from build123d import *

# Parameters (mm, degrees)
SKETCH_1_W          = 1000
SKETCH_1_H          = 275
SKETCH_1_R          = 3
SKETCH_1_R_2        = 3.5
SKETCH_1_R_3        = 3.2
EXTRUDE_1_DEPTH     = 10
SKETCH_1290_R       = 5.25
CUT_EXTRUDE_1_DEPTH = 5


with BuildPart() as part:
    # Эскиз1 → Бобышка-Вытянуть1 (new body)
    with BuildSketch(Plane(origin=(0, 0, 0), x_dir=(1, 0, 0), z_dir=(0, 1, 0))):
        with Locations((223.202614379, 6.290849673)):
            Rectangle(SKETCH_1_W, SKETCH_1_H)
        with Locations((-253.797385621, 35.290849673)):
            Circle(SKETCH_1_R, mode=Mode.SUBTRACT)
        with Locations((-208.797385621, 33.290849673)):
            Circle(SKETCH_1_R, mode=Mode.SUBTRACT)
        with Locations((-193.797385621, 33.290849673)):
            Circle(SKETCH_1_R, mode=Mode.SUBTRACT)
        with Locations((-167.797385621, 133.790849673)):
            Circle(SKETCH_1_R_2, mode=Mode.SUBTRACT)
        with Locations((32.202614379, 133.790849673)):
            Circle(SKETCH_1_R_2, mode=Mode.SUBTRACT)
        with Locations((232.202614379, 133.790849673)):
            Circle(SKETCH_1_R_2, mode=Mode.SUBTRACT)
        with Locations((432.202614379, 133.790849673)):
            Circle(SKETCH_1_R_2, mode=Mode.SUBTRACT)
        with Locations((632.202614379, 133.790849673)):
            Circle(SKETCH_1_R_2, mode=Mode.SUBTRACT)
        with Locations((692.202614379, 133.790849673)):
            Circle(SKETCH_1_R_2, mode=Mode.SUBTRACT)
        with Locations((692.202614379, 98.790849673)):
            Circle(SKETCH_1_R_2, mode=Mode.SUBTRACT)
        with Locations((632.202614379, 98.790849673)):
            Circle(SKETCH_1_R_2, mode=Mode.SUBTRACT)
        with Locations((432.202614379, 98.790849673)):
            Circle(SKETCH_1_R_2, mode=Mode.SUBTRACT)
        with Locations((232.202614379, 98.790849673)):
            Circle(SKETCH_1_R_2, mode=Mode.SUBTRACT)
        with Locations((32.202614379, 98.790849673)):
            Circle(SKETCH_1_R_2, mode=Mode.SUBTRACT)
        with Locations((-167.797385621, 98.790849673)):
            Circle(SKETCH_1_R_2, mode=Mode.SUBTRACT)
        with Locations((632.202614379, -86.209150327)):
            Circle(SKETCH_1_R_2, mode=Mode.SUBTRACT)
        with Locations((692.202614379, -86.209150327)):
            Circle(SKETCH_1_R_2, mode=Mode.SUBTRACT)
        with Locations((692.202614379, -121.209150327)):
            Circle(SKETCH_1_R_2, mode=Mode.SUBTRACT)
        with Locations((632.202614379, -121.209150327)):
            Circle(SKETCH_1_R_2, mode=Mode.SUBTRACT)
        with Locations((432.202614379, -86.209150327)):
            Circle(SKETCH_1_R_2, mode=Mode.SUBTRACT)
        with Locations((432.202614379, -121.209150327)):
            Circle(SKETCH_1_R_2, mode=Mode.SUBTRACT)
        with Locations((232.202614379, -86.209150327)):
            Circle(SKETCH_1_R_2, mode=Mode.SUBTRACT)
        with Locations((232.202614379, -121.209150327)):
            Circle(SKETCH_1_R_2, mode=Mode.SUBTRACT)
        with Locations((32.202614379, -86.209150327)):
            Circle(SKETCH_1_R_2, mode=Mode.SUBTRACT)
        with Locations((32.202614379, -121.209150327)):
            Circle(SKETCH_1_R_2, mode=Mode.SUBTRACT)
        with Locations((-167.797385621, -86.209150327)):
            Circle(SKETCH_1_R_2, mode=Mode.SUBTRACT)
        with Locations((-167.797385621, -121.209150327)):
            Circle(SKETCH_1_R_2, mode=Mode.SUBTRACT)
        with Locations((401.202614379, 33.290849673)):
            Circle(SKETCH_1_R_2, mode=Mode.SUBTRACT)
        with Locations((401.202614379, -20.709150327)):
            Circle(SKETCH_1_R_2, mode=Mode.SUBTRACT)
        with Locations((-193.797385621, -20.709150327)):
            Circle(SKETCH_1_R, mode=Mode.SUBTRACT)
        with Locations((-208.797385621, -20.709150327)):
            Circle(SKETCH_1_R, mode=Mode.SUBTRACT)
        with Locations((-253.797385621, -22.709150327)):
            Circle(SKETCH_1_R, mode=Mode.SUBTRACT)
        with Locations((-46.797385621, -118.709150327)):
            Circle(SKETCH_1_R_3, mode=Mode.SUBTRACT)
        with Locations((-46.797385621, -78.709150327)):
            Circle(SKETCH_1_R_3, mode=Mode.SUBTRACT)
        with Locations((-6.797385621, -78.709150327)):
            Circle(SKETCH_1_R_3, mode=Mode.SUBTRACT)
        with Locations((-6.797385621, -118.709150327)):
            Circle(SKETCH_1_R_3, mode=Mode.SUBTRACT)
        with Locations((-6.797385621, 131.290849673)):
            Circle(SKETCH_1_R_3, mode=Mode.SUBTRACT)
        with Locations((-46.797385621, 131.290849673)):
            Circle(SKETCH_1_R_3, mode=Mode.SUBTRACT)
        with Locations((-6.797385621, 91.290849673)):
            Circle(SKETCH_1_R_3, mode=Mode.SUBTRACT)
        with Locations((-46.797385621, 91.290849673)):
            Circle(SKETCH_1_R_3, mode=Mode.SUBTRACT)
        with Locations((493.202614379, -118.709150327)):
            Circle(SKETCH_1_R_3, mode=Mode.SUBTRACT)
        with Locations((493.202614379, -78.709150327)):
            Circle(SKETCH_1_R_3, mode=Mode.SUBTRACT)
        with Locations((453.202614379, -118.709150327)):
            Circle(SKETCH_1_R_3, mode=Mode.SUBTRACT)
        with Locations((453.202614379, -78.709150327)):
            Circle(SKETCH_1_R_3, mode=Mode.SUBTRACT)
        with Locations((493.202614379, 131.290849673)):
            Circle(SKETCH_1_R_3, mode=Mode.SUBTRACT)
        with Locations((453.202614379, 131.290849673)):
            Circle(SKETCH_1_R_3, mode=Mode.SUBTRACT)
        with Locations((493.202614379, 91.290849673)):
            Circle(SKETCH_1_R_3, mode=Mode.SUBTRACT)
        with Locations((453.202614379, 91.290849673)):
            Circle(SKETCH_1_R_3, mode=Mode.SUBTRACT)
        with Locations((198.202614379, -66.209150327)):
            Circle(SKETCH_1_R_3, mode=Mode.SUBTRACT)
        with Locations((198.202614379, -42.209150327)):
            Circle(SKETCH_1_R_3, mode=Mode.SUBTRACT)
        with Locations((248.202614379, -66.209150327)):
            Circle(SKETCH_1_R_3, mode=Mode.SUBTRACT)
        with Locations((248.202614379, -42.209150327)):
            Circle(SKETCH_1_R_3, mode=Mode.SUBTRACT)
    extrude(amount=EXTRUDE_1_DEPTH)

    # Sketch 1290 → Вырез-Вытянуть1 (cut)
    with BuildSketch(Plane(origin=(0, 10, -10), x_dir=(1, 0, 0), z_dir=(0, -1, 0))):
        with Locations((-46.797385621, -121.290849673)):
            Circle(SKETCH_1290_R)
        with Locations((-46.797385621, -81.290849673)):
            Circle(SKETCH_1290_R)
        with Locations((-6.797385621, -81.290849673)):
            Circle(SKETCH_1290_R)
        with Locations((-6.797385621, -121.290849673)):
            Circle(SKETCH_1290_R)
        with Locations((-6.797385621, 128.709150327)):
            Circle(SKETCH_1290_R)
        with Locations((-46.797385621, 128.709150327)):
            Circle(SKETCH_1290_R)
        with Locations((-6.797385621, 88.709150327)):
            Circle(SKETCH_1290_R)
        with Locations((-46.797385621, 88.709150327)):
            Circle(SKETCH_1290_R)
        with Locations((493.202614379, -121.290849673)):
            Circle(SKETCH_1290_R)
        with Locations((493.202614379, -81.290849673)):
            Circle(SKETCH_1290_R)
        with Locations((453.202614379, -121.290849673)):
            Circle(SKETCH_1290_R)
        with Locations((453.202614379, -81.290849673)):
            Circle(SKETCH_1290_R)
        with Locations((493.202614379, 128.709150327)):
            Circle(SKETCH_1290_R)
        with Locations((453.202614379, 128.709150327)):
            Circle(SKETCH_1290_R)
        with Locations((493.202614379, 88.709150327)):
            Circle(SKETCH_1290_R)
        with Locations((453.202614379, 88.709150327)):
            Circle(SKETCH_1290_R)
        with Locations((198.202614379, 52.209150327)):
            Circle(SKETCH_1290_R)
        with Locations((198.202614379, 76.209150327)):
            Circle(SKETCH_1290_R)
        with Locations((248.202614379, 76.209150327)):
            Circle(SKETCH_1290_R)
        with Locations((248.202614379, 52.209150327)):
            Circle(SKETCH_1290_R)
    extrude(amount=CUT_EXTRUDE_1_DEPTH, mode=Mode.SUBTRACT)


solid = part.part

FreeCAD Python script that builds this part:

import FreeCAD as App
import Part
import Sketcher


def add_polygon(sketch, points):
    """Adds a closed chain of lines whose ends are joined by coincident constraints."""
    first, n = sketch.GeometryCount, len(points)
    for a, b in zip(points, points[1:] + points[:1]):
        sketch.addGeometry(Part.LineSegment(App.Vector(*a, 0), App.Vector(*b, 0)), False)
    for i in range(n):
        sketch.addConstraint(Sketcher.Constraint("Coincident", first + i, 2, first + (i + 1) % n, 1))

doc = App.newDocument("Part")
body = doc.addObject("PartDesign::Body", "Body")

# Sketch on XZ plane
sketch1 = doc.addObject("Sketcher::SketchObject", "Sketch")
body.addObject(sketch1)
sketch1.AttachmentSupport = (doc.XZ_Plane, [""])
sketch1.MapMode = "FlatFace"
add_polygon(sketch1, [(-276.797386, -143.79085), (-276.797386, 131.20915), (723.202614, 131.20915), (723.202614, -143.79085)])  # lines 0-3
sketch1.addGeometry(Part.Circle(App.Vector(-167.797386, 121.20915, 0), App.Vector(0, 0, 1), 3.5), False)  # 4
sketch1.addGeometry(Part.Circle(App.Vector(-46.797386, 118.70915, 0), App.Vector(0, 0, 1), 3.2), False)  # 5
sketch1.addGeometry(Part.Circle(App.Vector(-167.797386, 86.20915, 0), App.Vector(0, 0, 1), 3.5), False)  # 6
sketch1.addGeometry(Part.Circle(App.Vector(-46.797386, 78.70915, 0), App.Vector(0, 0, 1), 3.2), False)  # 7
sketch1.addGeometry(Part.Circle(App.Vector(-6.797386, 118.70915, 0), App.Vector(0, 0, 1), 3.2), False)  # 8
sketch1.addGeometry(Part.Circle(App.Vector(32.202614, 121.20915, 0), App.Vector(0, 0, 1), 3.5), False)  # 9
sketch1.addGeometry(Part.Circle(App.Vector(32.202614, 86.20915, 0), App.Vector(0, 0, 1), 3.5), False)  # 10
sketch1.addGeometry(Part.Circle(App.Vector(-6.797386, 78.70915, 0), App.Vector(0, 0, 1), 3.2), False)  # 11
sketch1.addGeometry(Part.Circle(App.Vector(198.202614, 66.20915, 0), App.Vector(0, 0, 1), 3.2), False)  # 12
sketch1.addGeometry(Part.Circle(App.Vector(-253.797386, 22.70915, 0), App.Vector(0, 0, 1), 3), False)  # 13
sketch1.addGeometry(Part.Circle(App.Vector(-208.797386, 20.70915, 0), App.Vector(0, 0, 1), 3), False)  # 14
sketch1.addGeometry(Part.Circle(App.Vector(-193.797386, 20.70915, 0), App.Vector(0, 0, 1), 3), False)  # 15
sketch1.addGeometry(Part.Circle(App.Vector(198.202614, 42.20915, 0), App.Vector(0, 0, 1), 3.2), False)  # 16
sketch1.addGeometry(Part.Circle(App.Vector(232.202614, 121.20915, 0), App.Vector(0, 0, 1), 3.5), False)  # 17
sketch1.addGeometry(Part.Circle(App.Vector(432.202614, 121.20915, 0), App.Vector(0, 0, 1), 3.5), False)  # 18
sketch1.addGeometry(Part.Circle(App.Vector(453.202614, 118.70915, 0), App.Vector(0, 0, 1), 3.2), False)  # 19
sketch1.addGeometry(Part.Circle(App.Vector(232.202614, 86.20915, 0), App.Vector(0, 0, 1), 3.5), False)  # 20
sketch1.addGeometry(Part.Circle(App.Vector(248.202614, 66.20915, 0), App.Vector(0, 0, 1), 3.2), False)  # 21
sketch1.addGeometry(Part.Circle(App.Vector(432.202614, 86.20915, 0), App.Vector(0, 0, 1), 3.5), False)  # 22
sketch1.addGeometry(Part.Circle(App.Vector(453.202614, 78.70915, 0), App.Vector(0, 0, 1), 3.2), False)  # 23
sketch1.addGeometry(Part.Circle(App.Vector(493.202614, 118.70915, 0), App.Vector(0, 0, 1), 3.2), False)  # 24
sketch1.addGeometry(Part.Circle(App.Vector(632.202614, 121.20915, 0), App.Vector(0, 0, 1), 3.5), False)  # 25
sketch1.addGeometry(Part.Circle(App.Vector(692.202614, 121.20915, 0), App.Vector(0, 0, 1), 3.5), False)  # 26
sketch1.addGeometry(Part.Circle(App.Vector(493.202614, 78.70915, 0), App.Vector(0, 0, 1), 3.2), False)  # 27
sketch1.addGeometry(Part.Circle(App.Vector(632.202614, 86.20915, 0), App.Vector(0, 0, 1), 3.5), False)  # 28
sketch1.addGeometry(Part.Circle(App.Vector(692.202614, 86.20915, 0), App.Vector(0, 0, 1), 3.5), False)  # 29
sketch1.addGeometry(Part.Circle(App.Vector(248.202614, 42.20915, 0), App.Vector(0, 0, 1), 3.2), False)  # 30
sketch1.addGeometry(Part.Circle(App.Vector(401.202614, 20.70915, 0), App.Vector(0, 0, 1), 3.5), False)  # 31
sketch1.addGeometry(Part.Circle(App.Vector(-253.797386, -35.29085, 0), App.Vector(0, 0, 1), 3), False)  # 32
sketch1.addGeometry(Part.Circle(App.Vector(-208.797386, -33.29085, 0), App.Vector(0, 0, 1), 3), False)  # 33
sketch1.addGeometry(Part.Circle(App.Vector(-193.797386, -33.29085, 0), App.Vector(0, 0, 1), 3), False)  # 34
sketch1.addGeometry(Part.Circle(App.Vector(-167.797386, -98.79085, 0), App.Vector(0, 0, 1), 3.5), False)  # 35
sketch1.addGeometry(Part.Circle(App.Vector(-46.797386, -91.29085, 0), App.Vector(0, 0, 1), 3.2), False)  # 36
sketch1.addGeometry(Part.Circle(App.Vector(-167.797386, -133.79085, 0), App.Vector(0, 0, 1), 3.5), False)  # 37
sketch1.addGeometry(Part.Circle(App.Vector(-46.797386, -131.29085, 0), App.Vector(0, 0, 1), 3.2), False)  # 38
sketch1.addGeometry(Part.Circle(App.Vector(-6.797386, -91.29085, 0), App.Vector(0, 0, 1), 3.2), False)  # 39
sketch1.addGeometry(Part.Circle(App.Vector(32.202614, -98.79085, 0), App.Vector(0, 0, 1), 3.5), False)  # 40
sketch1.addGeometry(Part.Circle(App.Vector(-6.797386, -131.29085, 0), App.Vector(0, 0, 1), 3.2), False)  # 41
sketch1.addGeometry(Part.Circle(App.Vector(32.202614, -133.79085, 0), App.Vector(0, 0, 1), 3.5), False)  # 42
sketch1.addGeometry(Part.Circle(App.Vector(401.202614, -33.29085, 0), App.Vector(0, 0, 1), 3.5), False)  # 43
sketch1.addGeometry(Part.Circle(App.Vector(232.202614, -98.79085, 0), App.Vector(0, 0, 1), 3.5), False)  # 44
sketch1.addGeometry(Part.Circle(App.Vector(453.202614, -91.29085, 0), App.Vector(0, 0, 1), 3.2), False)  # 45
sketch1.addGeometry(Part.Circle(App.Vector(432.202614, -98.79085, 0), App.Vector(0, 0, 1), 3.5), False)  # 46
sketch1.addGeometry(Part.Circle(App.Vector(232.202614, -133.79085, 0), App.Vector(0, 0, 1), 3.5), False)  # 47
sketch1.addGeometry(Part.Circle(App.Vector(453.202614, -131.29085, 0), App.Vector(0, 0, 1), 3.2), False)  # 48
sketch1.addGeometry(Part.Circle(App.Vector(432.202614, -133.79085, 0), App.Vector(0, 0, 1), 3.5), False)  # 49
sketch1.addGeometry(Part.Circle(App.Vector(493.202614, -91.29085, 0), App.Vector(0, 0, 1), 3.2), False)  # 50
sketch1.addGeometry(Part.Circle(App.Vector(632.202614, -98.79085, 0), App.Vector(0, 0, 1), 3.5), False)  # 51
sketch1.addGeometry(Part.Circle(App.Vector(692.202614, -98.79085, 0), App.Vector(0, 0, 1), 3.5), False)  # 52
sketch1.addGeometry(Part.Circle(App.Vector(493.202614, -131.29085, 0), App.Vector(0, 0, 1), 3.2), False)  # 53
sketch1.addGeometry(Part.Circle(App.Vector(632.202614, -133.79085, 0), App.Vector(0, 0, 1), 3.5), False)  # 54
sketch1.addGeometry(Part.Circle(App.Vector(692.202614, -133.79085, 0), App.Vector(0, 0, 1), 3.5), False)  # 55
sketch1.addConstraint(Sketcher.Constraint("Vertical", 0))
sketch1.addConstraint(Sketcher.Constraint("Horizontal", 1))
sketch1.addConstraint(Sketcher.Constraint("Vertical", 2))
sketch1.addConstraint(Sketcher.Constraint("Horizontal", 3))
sketch1.addConstraint(Sketcher.Constraint("Equal", 4, 6))
sketch1.addConstraint(Sketcher.Constraint("Equal", 5, 7))
sketch1.addConstraint(Sketcher.Constraint("Equal", 7, 8))
sketch1.addConstraint(Sketcher.Constraint("Equal", 6, 9))
sketch1.addConstraint(Sketcher.Constraint("Equal", 9, 10))
sketch1.addConstraint(Sketcher.Constraint("Equal", 8, 11))
sketch1.addConstraint(Sketcher.Constraint("Equal", 11, 12))
sketch1.addConstraint(Sketcher.Constraint("Equal", 13, 14))
sketch1.addConstraint(Sketcher.Constraint("Equal", 14, 15))
sketch1.addConstraint(Sketcher.Constraint("Equal", 12, 16))
sketch1.addConstraint(Sketcher.Constraint("Equal", 10, 17))
sketch1.addConstraint(Sketcher.Constraint("Equal", 17, 18))
sketch1.addConstraint(Sketcher.Constraint("Equal", 16, 19))
sketch1.addConstraint(Sketcher.Constraint("Equal", 18, 20))
sketch1.addConstraint(Sketcher.Constraint("Equal", 19, 21))
sketch1.addConstraint(Sketcher.Constraint("Equal", 20, 22))
sketch1.addConstraint(Sketcher.Constraint("Equal", 21, 23))
sketch1.addConstraint(Sketcher.Constraint("Equal", 23, 24))
sketch1.addConstraint(Sketcher.Constraint("Equal", 22, 25))
sketch1.addConstraint(Sketcher.Constraint("Equal", 25, 26))
sketch1.addConstraint(Sketcher.Constraint("Equal", 24, 27))
sketch1.addConstraint(Sketcher.Constraint("Equal", 26, 28))
sketch1.addConstraint(Sketcher.Constraint("Equal", 28, 29))
sketch1.addConstraint(Sketcher.Constraint("Equal", 27, 30))
sketch1.addConstraint(Sketcher.Constraint("Equal", 29, 31))
sketch1.addConstraint(Sketcher.Constraint("Equal", 15, 32))
sketch1.addConstraint(Sketcher.Constraint("Equal", 32, 33))
sketch1.addConstraint(Sketcher.Constraint("Equal", 33, 34))
sketch1.addConstraint(Sketcher.Constraint("Equal", 31, 35))
sketch1.addConstraint(Sketcher.Constraint("Equal", 30, 36))
sketch1.addConstraint(Sketcher.Constraint("Equal", 35, 37))
sketch1.addConstraint(Sketcher.Constraint("Equal", 36, 38))
sketch1.addConstraint(Sketcher.Constraint("Equal", 38, 39))
sketch1.addConstraint(Sketcher.Constraint("Equal", 37, 40))
sketch1.addConstraint(Sketcher.Constraint("Equal", 39, 41))
sketch1.addConstraint(Sketcher.Constraint("Equal", 40, 42))
sketch1.addConstraint(Sketcher.Constraint("Equal", 42, 43))
sketch1.addConstraint(Sketcher.Constraint("Equal", 43, 44))
sketch1.addConstraint(Sketcher.Constraint("Equal", 41, 45))
sketch1.addConstraint(Sketcher.Constraint("Equal", 44, 46))
sketch1.addConstraint(Sketcher.Constraint("Equal", 46, 47))
sketch1.addConstraint(Sketcher.Constraint("Equal", 45, 48))
sketch1.addConstraint(Sketcher.Constraint("Equal", 47, 49))
sketch1.addConstraint(Sketcher.Constraint("Equal", 48, 50))
sketch1.addConstraint(Sketcher.Constraint("Equal", 49, 51))
sketch1.addConstraint(Sketcher.Constraint("Equal", 51, 52))
sketch1.addConstraint(Sketcher.Constraint("Equal", 50, 53))
sketch1.addConstraint(Sketcher.Constraint("Equal", 52, 54))
sketch1.addConstraint(Sketcher.Constraint("Equal", 54, 55))
sketch1.addConstraint(Sketcher.Constraint("Horizontal", 5, 3, 8, 3))
sketch1.addConstraint(Sketcher.Constraint("Horizontal", 4, 3, 9, 3))
sketch1.addConstraint(Sketcher.Constraint("Horizontal", 6, 3, 10, 3))
sketch1.addConstraint(Sketcher.Constraint("Horizontal", 7, 3, 11, 3))
sketch1.addConstraint(Sketcher.Constraint("Horizontal", 14, 3, 15, 3))
sketch1.addConstraint(Sketcher.Constraint("Horizontal", 9, 3, 17, 3))
sketch1.addConstraint(Sketcher.Constraint("Horizontal", 17, 3, 18, 3))
sketch1.addConstraint(Sketcher.Constraint("Horizontal", 8, 3, 19, 3))
sketch1.addConstraint(Sketcher.Constraint("Horizontal", 10, 3, 20, 3))
sketch1.addConstraint(Sketcher.Constraint("Horizontal", 12, 3, 21, 3))
sketch1.addConstraint(Sketcher.Constraint("Horizontal", 20, 3, 22, 3))
sketch1.addConstraint(Sketcher.Constraint("Horizontal", 11, 3, 23, 3))
sketch1.addConstraint(Sketcher.Constraint("Horizontal", 19, 3, 24, 3))
sketch1.addConstraint(Sketcher.Constraint("Horizontal", 18, 3, 25, 3))
sketch1.addConstraint(Sketcher.Constraint("Horizontal", 25, 3, 26, 3))
sketch1.addConstraint(Sketcher.Constraint("Horizontal", 23, 3, 27, 3))
sketch1.addConstraint(Sketcher.Constraint("Horizontal", 22, 3, 28, 3))
sketch1.addConstraint(Sketcher.Constraint("Horizontal", 28, 3, 29, 3))
sketch1.addConstraint(Sketcher.Constraint("Horizontal", 16, 3, 30, 3))
sketch1.addConstraint(Sketcher.Constraint("Horizontal", 15, 3, 31, 3))
sketch1.addConstraint(Sketcher.Constraint("Horizontal", 33, 3, 34, 3))
sketch1.addConstraint(Sketcher.Constraint("Horizontal", 36, 3, 39, 3))
sketch1.addConstraint(Sketcher.Constraint("Horizontal", 35, 3, 40, 3))
sketch1.addConstraint(Sketcher.Constraint("Horizontal", 38, 3, 41, 3))
sketch1.addConstraint(Sketcher.Constraint("Horizontal", 37, 3, 42, 3))
sketch1.addConstraint(Sketcher.Constraint("Horizontal", 34, 3, 43, 3))
sketch1.addConstraint(Sketcher.Constraint("Horizontal", 40, 3, 44, 3))
sketch1.addConstraint(Sketcher.Constraint("Horizontal", 39, 3, 45, 3))
sketch1.addConstraint(Sketcher.Constraint("Horizontal", 44, 3, 46, 3))
sketch1.addConstraint(Sketcher.Constraint("Horizontal", 42, 3, 47, 3))
sketch1.addConstraint(Sketcher.Constraint("Horizontal", 41, 3, 48, 3))
sketch1.addConstraint(Sketcher.Constraint("Horizontal", 47, 3, 49, 3))
sketch1.addConstraint(Sketcher.Constraint("Horizontal", 45, 3, 50, 3))
sketch1.addConstraint(Sketcher.Constraint("Horizontal", 46, 3, 51, 3))
sketch1.addConstraint(Sketcher.Constraint("Horizontal", 51, 3, 52, 3))
sketch1.addConstraint(Sketcher.Constraint("Horizontal", 48, 3, 53, 3))
sketch1.addConstraint(Sketcher.Constraint("Horizontal", 49, 3, 54, 3))
sketch1.addConstraint(Sketcher.Constraint("Horizontal", 54, 3, 55, 3))
sketch1.addConstraint(Sketcher.Constraint("Vertical", 4, 3, 6, 3))
sketch1.addConstraint(Sketcher.Constraint("Vertical", 5, 3, 7, 3))
sketch1.addConstraint(Sketcher.Constraint("Vertical", 9, 3, 10, 3))
sketch1.addConstraint(Sketcher.Constraint("Vertical", 8, 3, 11, 3))
sketch1.addConstraint(Sketcher.Constraint("Vertical", 12, 3, 16, 3))
sketch1.addConstraint(Sketcher.Constraint("Vertical", 17, 3, 20, 3))
sketch1.addConstraint(Sketcher.Constraint("Vertical", 18, 3, 22, 3))
sketch1.addConstraint(Sketcher.Constraint("Vertical", 19, 3, 23, 3))
sketch1.addConstraint(Sketcher.Constraint("Vertical", 24, 3, 27, 3))
sketch1.addConstraint(Sketcher.Constraint("Vertical", 25, 3, 28, 3))
sketch1.addConstraint(Sketcher.Constraint("Vertical", 26, 3, 29, 3))
sketch1.addConstraint(Sketcher.Constraint("Vertical", 21, 3, 30, 3))
sketch1.addConstraint(Sketcher.Constraint("Vertical", 13, 3, 32, 3))
sketch1.addConstraint(Sketcher.Constraint("Vertical", 14, 3, 33, 3))
sketch1.addConstraint(Sketcher.Constraint("Vertical", 15, 3, 34, 3))
sketch1.addConstraint(Sketcher.Constraint("Vertical", 6, 3, 35, 3))
sketch1.addConstraint(Sketcher.Constraint("Vertical", 7, 3, 36, 3))
sketch1.addConstraint(Sketcher.Constraint("Vertical", 35, 3, 37, 3))
sketch1.addConstraint(Sketcher.Constraint("Vertical", 36, 3, 38, 3))
sketch1.addConstraint(Sketcher.Constraint("Vertical", 11, 3, 39, 3))
sketch1.addConstraint(Sketcher.Constraint("Vertical", 10, 3, 40, 3))
sketch1.addConstraint(Sketcher.Constraint("Vertical", 39, 3, 41, 3))
sketch1.addConstraint(Sketcher.Constraint("Vertical", 40, 3, 42, 3))
sketch1.addConstraint(Sketcher.Constraint("Vertical", 31, 3, 43, 3))
sketch1.addConstraint(Sketcher.Constraint("Vertical", 20, 3, 44, 3))
sketch1.addConstraint(Sketcher.Constraint("Vertical", 23, 3, 45, 3))
sketch1.addConstraint(Sketcher.Constraint("Vertical", 22, 3, 46, 3))
sketch1.addConstraint(Sketcher.Constraint("Vertical", 44, 3, 47, 3))
sketch1.addConstraint(Sketcher.Constraint("Vertical", 45, 3, 48, 3))
sketch1.addConstraint(Sketcher.Constraint("Vertical", 46, 3, 49, 3))
sketch1.addConstraint(Sketcher.Constraint("Vertical", 27, 3, 50, 3))
sketch1.addConstraint(Sketcher.Constraint("Vertical", 28, 3, 51, 3))
sketch1.addConstraint(Sketcher.Constraint("Vertical", 29, 3, 52, 3))
sketch1.addConstraint(Sketcher.Constraint("Vertical", 50, 3, 53, 3))
sketch1.addConstraint(Sketcher.Constraint("Vertical", 51, 3, 54, 3))
sketch1.addConstraint(Sketcher.Constraint("Vertical", 52, 3, 55, 3))
sketch1.addConstraint(Sketcher.Constraint("Diameter", 4, 7.0))
sketch1.addConstraint(Sketcher.Constraint("Diameter", 13, 6.0))
sketch1.addConstraint(Sketcher.Constraint("Diameter", 5, 6.4))
sketch1.addConstraint(Sketcher.Constraint("DistanceX", 1, 1, 1, 2, 1000.0))
sketch1.addConstraint(Sketcher.Constraint("DistanceY", 0, 1, 0, 2, 275.0))
sketch1.addConstraint(Sketcher.Constraint("DistanceX", 4, 3, 5, 3, 121.0))
sketch1.addConstraint(Sketcher.Constraint("DistanceY", 6, 3, 4, 3, 35.0))
sketch1.addConstraint(Sketcher.Constraint("DistanceY", 7, 3, 5, 3, 40.0))
sketch1.addConstraint(Sketcher.Constraint("DistanceX", 5, 3, 8, 3, 40.0))
sketch1.addConstraint(Sketcher.Constraint("DistanceX", 8, 3, 9, 3, 39.0))
sketch1.addConstraint(Sketcher.Constraint("DistanceX", 10, 3, 12, 3, 166.0))
sketch1.addConstraint(Sketcher.Constraint("DistanceY", 12, 3, 10, 3, 20.0))
sketch1.addConstraint(Sketcher.Constraint("DistanceX", 13, 3, 6, 3, 86.0))
sketch1.addConstraint(Sketcher.Constraint("DistanceY", 13, 3, 7, 3, 56.0))
sketch1.addConstraint(Sketcher.Constraint("DistanceX", 13, 3, 14, 3, 45.0))
sketch1.addConstraint(Sketcher.Constraint("DistanceY", 14, 3, 13, 3, 2.0))
sketch1.addConstraint(Sketcher.Constraint("DistanceX", 14, 3, 15, 3, 15.0))
sketch1.addConstraint(Sketcher.Constraint("DistanceY", 16, 3, 12, 3, 24.0))
sketch1.addConstraint(Sketcher.Constraint("DistanceX", 12, 3, 17, 3, 34.0))
sketch1.addConstraint(Sketcher.Constraint("DistanceX", 17, 3, 18, 3, 200.0))
sketch1.addConstraint(Sketcher.Constraint("DistanceX", 18, 3, 19, 3, 21.0))
sketch1.addConstraint(Sketcher.Constraint("DistanceX", 20, 3, 21, 3, 16.0))
sketch1.addConstraint(Sketcher.Constraint("DistanceX", 19, 3, 24, 3, 40.0))
sketch1.addConstraint(Sketcher.Constraint("DistanceX", 24, 3, 25, 3, 139.0))
sketch1.addConstraint(Sketcher.Constraint("DistanceX", 25, 3, 26, 3, 60.0))
sketch1.addConstraint(Sketcher.Constraint("DistanceX", 31, 3, 22, 3, 31.0))
sketch1.addConstraint(Sketcher.Constraint("DistanceY", 32, 3, 13, 3, 58.0))
sketch1.addConstraint(Sketcher.Constraint("DistanceY", 32, 3, 33, 3, 2.0))
sketch1.addConstraint(Sketcher.Constraint("DistanceY", 36, 3, 34, 3, 58.0))
sketch1.addConstraint(Sketcher.Constraint("DistanceY", 37, 3, 35, 3, 35.0))
sketch1.addConstraint(Sketcher.Constraint("DistanceY", 38, 3, 36, 3, 40.0))
sketch1.addConstraint(Sketcher.Constraint("DistanceY", 40, 3, 10, 3, 185.0))
sketch1.addConstraint(Sketcher.Constraint("DistanceX", 0, 2, 4, 3, 109.0))
sketch1.addConstraint(Sketcher.Constraint("DistanceY", 4, 3, 0, 2, 10.0))
sketch1.addConstraint(Sketcher.Constraint("DistanceY", 5, 3, 4, 3, 2.5))
sketch1.addConstraint(Sketcher.Constraint("DistanceY", -1, 1, 4, 3, 121.20915))
sketch1.addConstraint(Sketcher.Constraint("DistanceX", 4, 3, -1, 1, 167.797386))
pad1 = doc.addObject("PartDesign::Pad", "Pad")
body.addObject(pad1)
pad1.Profile = sketch1
pad1.Length = 10
pad1.Reversed = True

# Sketch on XZ plane
sketch2 = doc.addObject("Sketcher::SketchObject", "Sketch001")
body.addObject(sketch2)
sketch2.AttachmentSupport = (doc.XZ_Plane, [""])
sketch2.MapMode = "FlatFace"
sketch2.AttachmentOffset = App.Placement(App.Vector(0, 0, -10), App.Rotation())
sketch2.addGeometry(Part.Circle(App.Vector(-46.797386, -131.29085, 0), App.Vector(0, 0, 1), 5.25), False)
sketch2.addGeometry(Part.Circle(App.Vector(-46.797386, -91.29085, 0), App.Vector(0, 0, 1), 5.25), False)
sketch2.addGeometry(Part.Circle(App.Vector(-6.797386, -91.29085, 0), App.Vector(0, 0, 1), 5.25), False)
sketch2.addGeometry(Part.Circle(App.Vector(-6.797386, -131.29085, 0), App.Vector(0, 0, 1), 5.25), False)
sketch2.addGeometry(Part.Circle(App.Vector(-6.797386, 118.70915, 0), App.Vector(0, 0, 1), 5.25), False)
sketch2.addGeometry(Part.Circle(App.Vector(-46.797386, 118.70915, 0), App.Vector(0, 0, 1), 5.25), False)
sketch2.addGeometry(Part.Circle(App.Vector(-6.797386, 78.70915, 0), App.Vector(0, 0, 1), 5.25), False)
sketch2.addGeometry(Part.Circle(App.Vector(-46.797386, 78.70915, 0), App.Vector(0, 0, 1), 5.25), False)
sketch2.addGeometry(Part.Circle(App.Vector(493.202614, -131.29085, 0), App.Vector(0, 0, 1), 5.25), False)
sketch2.addGeometry(Part.Circle(App.Vector(493.202614, -91.29085, 0), App.Vector(0, 0, 1), 5.25), False)
sketch2.addGeometry(Part.Circle(App.Vector(453.202614, -131.29085, 0), App.Vector(0, 0, 1), 5.25), False)
sketch2.addGeometry(Part.Circle(App.Vector(453.202614, -91.29085, 0), App.Vector(0, 0, 1), 5.25), False)
sketch2.addGeometry(Part.Circle(App.Vector(493.202614, 118.70915, 0), App.Vector(0, 0, 1), 5.25), False)
sketch2.addGeometry(Part.Circle(App.Vector(453.202614, 118.70915, 0), App.Vector(0, 0, 1), 5.25), False)
sketch2.addGeometry(Part.Circle(App.Vector(493.202614, 78.70915, 0), App.Vector(0, 0, 1), 5.25), False)
sketch2.addGeometry(Part.Circle(App.Vector(453.202614, 78.70915, 0), App.Vector(0, 0, 1), 5.25), False)
sketch2.addGeometry(Part.Circle(App.Vector(198.202614, 42.20915, 0), App.Vector(0, 0, 1), 5.25), False)
sketch2.addGeometry(Part.Circle(App.Vector(198.202614, 66.20915, 0), App.Vector(0, 0, 1), 5.25), False)
sketch2.addGeometry(Part.Circle(App.Vector(248.202614, 66.20915, 0), App.Vector(0, 0, 1), 5.25), False)
sketch2.addGeometry(Part.Circle(App.Vector(248.202614, 42.20915, 0), App.Vector(0, 0, 1), 5.25), False)
sketch2.addConstraint(Sketcher.Constraint("Equal", 0, 1))
sketch2.addConstraint(Sketcher.Constraint("Equal", 1, 2))
sketch2.addConstraint(Sketcher.Constraint("Equal", 2, 3))
sketch2.addConstraint(Sketcher.Constraint("Equal", 3, 4))
sketch2.addConstraint(Sketcher.Constraint("Equal", 4, 5))
sketch2.addConstraint(Sketcher.Constraint("Equal", 5, 6))
sketch2.addConstraint(Sketcher.Constraint("Equal", 6, 7))
sketch2.addConstraint(Sketcher.Constraint("Equal", 7, 8))
sketch2.addConstraint(Sketcher.Constraint("Equal", 8, 9))
sketch2.addConstraint(Sketcher.Constraint("Equal", 9, 10))
sketch2.addConstraint(Sketcher.Constraint("Equal", 10, 11))
sketch2.addConstraint(Sketcher.Constraint("Equal", 11, 12))
sketch2.addConstraint(Sketcher.Constraint("Equal", 12, 13))
sketch2.addConstraint(Sketcher.Constraint("Equal", 13, 14))
sketch2.addConstraint(Sketcher.Constraint("Equal", 14, 15))
sketch2.addConstraint(Sketcher.Constraint("Equal", 15, 16))
sketch2.addConstraint(Sketcher.Constraint("Equal", 16, 17))
sketch2.addConstraint(Sketcher.Constraint("Equal", 17, 18))
sketch2.addConstraint(Sketcher.Constraint("Equal", 18, 19))
sketch2.addConstraint(Sketcher.Constraint("Horizontal", 1, 3, 2, 3))
sketch2.addConstraint(Sketcher.Constraint("Horizontal", 0, 3, 3, 3))
sketch2.addConstraint(Sketcher.Constraint("Horizontal", 4, 3, 5, 3))
sketch2.addConstraint(Sketcher.Constraint("Horizontal", 6, 3, 7, 3))
sketch2.addConstraint(Sketcher.Constraint("Horizontal", 3, 3, 8, 3))
sketch2.addConstraint(Sketcher.Constraint("Horizontal", 2, 3, 9, 3))
sketch2.addConstraint(Sketcher.Constraint("Horizontal", 8, 3, 10, 3))
sketch2.addConstraint(Sketcher.Constraint("Horizontal", 9, 3, 11, 3))
sketch2.addConstraint(Sketcher.Constraint("Horizontal", 5, 3, 12, 3))
sketch2.addConstraint(Sketcher.Constraint("Horizontal", 12, 3, 13, 3))
sketch2.addConstraint(Sketcher.Constraint("Horizontal", 7, 3, 14, 3))
sketch2.addConstraint(Sketcher.Constraint("Horizontal", 14, 3, 15, 3))
sketch2.addConstraint(Sketcher.Constraint("Horizontal", 17, 3, 18, 3))
sketch2.addConstraint(Sketcher.Constraint("Horizontal", 16, 3, 19, 3))
sketch2.addConstraint(Sketcher.Constraint("Vertical", 0, 3, 1, 3))
sketch2.addConstraint(Sketcher.Constraint("Vertical", 2, 3, 3, 3))
sketch2.addConstraint(Sketcher.Constraint("Vertical", 3, 3, 4, 3))
sketch2.addConstraint(Sketcher.Constraint("Vertical", 1, 3, 5, 3))
sketch2.addConstraint(Sketcher.Constraint("Vertical", 4, 3, 6, 3))
sketch2.addConstraint(Sketcher.Constraint("Vertical", 5, 3, 7, 3))
sketch2.addConstraint(Sketcher.Constraint("Vertical", 8, 3, 9, 3))
sketch2.addConstraint(Sketcher.Constraint("Vertical", 10, 3, 11, 3))
sketch2.addConstraint(Sketcher.Constraint("Vertical", 9, 3, 12, 3))
sketch2.addConstraint(Sketcher.Constraint("Vertical", 11, 3, 13, 3))
sketch2.addConstraint(Sketcher.Constraint("Vertical", 12, 3, 14, 3))
sketch2.addConstraint(Sketcher.Constraint("Vertical", 13, 3, 15, 3))
sketch2.addConstraint(Sketcher.Constraint("Vertical", 16, 3, 17, 3))
sketch2.addConstraint(Sketcher.Constraint("Vertical", 18, 3, 19, 3))
sketch2.addConstraint(Sketcher.Constraint("Diameter", 0, 10.5))
sketch2.addConstraint(Sketcher.Constraint("DistanceY", 0, 3, 1, 3, 40.0))
sketch2.addConstraint(Sketcher.Constraint("DistanceX", 1, 3, 2, 3, 40.0))
sketch2.addConstraint(Sketcher.Constraint("DistanceY", 2, 3, 4, 3, 210.0))
sketch2.addConstraint(Sketcher.Constraint("DistanceY", 6, 3, 4, 3, 40.0))
sketch2.addConstraint(Sketcher.Constraint("DistanceX", 3, 3, 8, 3, 500.0))
sketch2.addConstraint(Sketcher.Constraint("DistanceX", 10, 3, 8, 3, 40.0))
sketch2.addConstraint(Sketcher.Constraint("DistanceX", 6, 3, 16, 3, 205.0))
sketch2.addConstraint(Sketcher.Constraint("DistanceY", 16, 3, 17, 3, 24.0))
sketch2.addConstraint(Sketcher.Constraint("DistanceX", 17, 3, 18, 3, 50.0))
sketch2.addConstraint(Sketcher.Constraint("DistanceY", 16, 3, 6, 3, 36.5))
sketch2.addConstraint(Sketcher.Constraint("DistanceY", 0, 3, -1, 1, 131.29085))
sketch2.addConstraint(Sketcher.Constraint("DistanceX", 0, 3, -1, 1, 46.797386))
pocket1 = doc.addObject("PartDesign::Pocket", "Pocket")
body.addObject(pocket1)
pocket1.Profile = sketch2
pocket1.Length = 5
pocket1.Reversed = True

doc.recompute()
